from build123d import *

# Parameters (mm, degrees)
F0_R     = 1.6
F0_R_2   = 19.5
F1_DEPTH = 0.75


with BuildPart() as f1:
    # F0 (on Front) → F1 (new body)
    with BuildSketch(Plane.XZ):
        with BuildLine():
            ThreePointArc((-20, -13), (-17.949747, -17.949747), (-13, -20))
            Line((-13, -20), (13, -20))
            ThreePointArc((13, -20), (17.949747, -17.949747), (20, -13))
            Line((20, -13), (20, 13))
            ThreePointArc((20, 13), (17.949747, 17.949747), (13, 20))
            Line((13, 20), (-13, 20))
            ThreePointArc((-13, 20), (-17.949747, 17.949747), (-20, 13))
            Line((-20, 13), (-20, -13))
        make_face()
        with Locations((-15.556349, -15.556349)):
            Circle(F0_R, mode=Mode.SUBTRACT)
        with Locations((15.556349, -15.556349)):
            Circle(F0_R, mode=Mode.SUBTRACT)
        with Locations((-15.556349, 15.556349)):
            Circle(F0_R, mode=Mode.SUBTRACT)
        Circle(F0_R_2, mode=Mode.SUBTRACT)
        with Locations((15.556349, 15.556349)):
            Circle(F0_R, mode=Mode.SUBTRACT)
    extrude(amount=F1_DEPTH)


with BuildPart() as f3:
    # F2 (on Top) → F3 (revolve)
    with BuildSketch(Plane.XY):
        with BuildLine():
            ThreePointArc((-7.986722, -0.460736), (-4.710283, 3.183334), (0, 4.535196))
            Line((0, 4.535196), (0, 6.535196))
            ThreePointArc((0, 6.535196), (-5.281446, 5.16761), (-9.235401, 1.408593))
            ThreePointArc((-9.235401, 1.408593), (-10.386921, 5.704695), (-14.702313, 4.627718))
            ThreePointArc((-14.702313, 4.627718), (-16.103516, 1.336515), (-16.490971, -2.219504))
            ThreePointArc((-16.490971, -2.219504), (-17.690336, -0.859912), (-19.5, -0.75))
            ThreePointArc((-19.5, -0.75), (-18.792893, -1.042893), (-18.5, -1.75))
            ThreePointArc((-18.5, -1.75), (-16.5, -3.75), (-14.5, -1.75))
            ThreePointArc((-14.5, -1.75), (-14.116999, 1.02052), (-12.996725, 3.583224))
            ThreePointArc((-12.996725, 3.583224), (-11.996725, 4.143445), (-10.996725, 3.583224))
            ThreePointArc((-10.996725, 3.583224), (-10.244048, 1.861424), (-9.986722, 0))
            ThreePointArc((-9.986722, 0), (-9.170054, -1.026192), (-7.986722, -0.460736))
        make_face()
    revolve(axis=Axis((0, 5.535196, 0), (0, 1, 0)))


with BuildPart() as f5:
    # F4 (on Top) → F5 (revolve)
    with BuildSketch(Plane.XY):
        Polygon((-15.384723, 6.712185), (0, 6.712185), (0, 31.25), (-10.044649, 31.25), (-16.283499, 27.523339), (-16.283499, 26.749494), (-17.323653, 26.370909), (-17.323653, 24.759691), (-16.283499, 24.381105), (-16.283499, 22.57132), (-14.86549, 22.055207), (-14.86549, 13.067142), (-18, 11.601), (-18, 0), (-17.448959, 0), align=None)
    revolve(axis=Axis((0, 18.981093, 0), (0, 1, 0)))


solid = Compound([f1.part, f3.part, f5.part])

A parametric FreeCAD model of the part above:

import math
import FreeCAD as App
import Part
import Sketcher

V = App.Vector
Q = App.Units.Quantity

doc = App.newDocument("Part")
body = doc.addObject("PartDesign::Body", "Body")

# Sketch on XZ plane
sketch1 = body.newObject("Sketcher::SketchObject", "Sketch")
sketch1.AttachmentSupport = (doc.getObject("XZ_Plane"), [""])
sketch1.MapMode = "FlatFace"
sketch1.addGeometry([
    Part.ArcOfCircle(Part.Circle(V(-13, -13, 0), V(0, 0, 1), 7), math.radians(-180), math.radians(-90)),  # 0
    Part.LineSegment(V(-13, -20, 0), V(13, -20, 0)),  # 1
    Part.ArcOfCircle(Part.Circle(V(13, -13, 0), V(0, 0, 1), 7), math.radians(-90), math.radians(0)),  # 2
    Part.LineSegment(V(20, -13, 0), V(20, 13, 0)),  # 3
    Part.ArcOfCircle(Part.Circle(V(13, 13, 0), V(0, 0, 1), 7), math.radians(0), math.radians(90)),  # 4
    Part.LineSegment(V(13, 20, 0), V(-13, 20, 0)),  # 5
    Part.ArcOfCircle(Part.Circle(V(-13, 13, 0), V(0, 0, 1), 7), math.radians(90), math.radians(180)),  # 6
    Part.LineSegment(V(-20, 13, 0), V(-20, -13, 0)),  # 7
    Part.Circle(V(-15.6, -15.6, 0), V(0, 0, 1), 1.6),  # 8
    Part.Circle(V(15.6, -15.6, 0), V(0, 0, 1), 1.6),  # 9
    Part.Circle(V(-15.6, 15.6, 0), V(0, 0, 1), 1.6),  # 10
    Part.Circle(V(0, 0, 0), V(0, 0, 1), 19.5),  # 11
    Part.Circle(V(15.6, 15.6, 0), V(0, 0, 1), 1.6),  # 12
], False)
sketch1.addConstraint([
    Sketcher.Constraint("Tangent", 0, 2, 1, 1),
    Sketcher.Constraint("Tangent", 1, 2, 2, 1),
    Sketcher.Constraint("Tangent", 2, 2, 3, 1),
    Sketcher.Constraint("Tangent", 3, 2, 4, 1),
    Sketcher.Constraint("Tangent", 4, 2, 5, 1),
    Sketcher.Constraint("Tangent", 5, 2, 6, 1),
    Sketcher.Constraint("Tangent", 6, 2, 7, 1),
    Sketcher.Constraint("Tangent", 7, 2, 0, 1),
    Sketcher.Constraint("Horizontal", 1),
    Sketcher.Constraint("Vertical", 3),
    Sketcher.Constraint("Horizontal", 5),
    Sketcher.Constraint("Vertical", 7),
    Sketcher.Constraint("Coincident", 11, 3, -1, 1),
    Sketcher.Constraint("Equal", 0, 2),
    Sketcher.Constraint("Equal", 2, 4),
    Sketcher.Constraint("Equal", 4, 6),
    Sketcher.Constraint("Equal", 8, 9),
    Sketcher.Constraint("Equal", 9, 10),
    Sketcher.Constraint("Equal", 10, 12),
    Sketcher.Constraint("Symmetric", 0, 3, 4, 3, -1, 1),
    Sketcher.Constraint("Symmetric", 9, 3, 10, 3, -1, 1),
    Sketcher.Constraint("Symmetric", 8, 3, 12, 3, -1, 1),
    Sketcher.Constraint("Symmetric", 8, 3, 9, 3, -2),
    Sketcher.Constraint("Equal", 5, 3),
    Sketcher.Constraint("Diameter", 11, 39.0),
    Sketcher.Constraint("Radius", 0, 7.000002),
    Sketcher.Constraint("Diameter", 8, 3.2),
    Sketcher.Constraint("DistanceX", 1, 1, 1, 2, 26.0),
    Sketcher.Constraint("DistanceX", 8, 3, 9, 3, 31.112698),
    Sketcher.Constraint("DistanceY", 8, 3, 10, 3, 31.112698),
])
pad1 = body.newObject("PartDesign::Pad", "Pad")
pad1.Profile = sketch1
pad1.Length = 0.75
body2 = doc.addObject("PartDesign::Body", "Body001")

# Sketch on XY plane
sketch2 = body2.newObject("Sketcher::SketchObject", "Sketch001")
sketch2.AttachmentSupport = (doc.getObject("XY_Plane001"), [""])
sketch2.MapMode = "FlatFace"
sketch2.addGeometry([
    Part.ArcOfCircle(Part.Circle(V(0, -4.346736, 0), V(0, 0, 1), 8.881932), math.radians(89.999998), math.radians(154.054409)),  # 0
    Part.LineSegment(V(0, 4.535196, 0), V(0, 6.535196, 0)),  # 1
    Part.ArcOfCircle(Part.Circle(V(-0.000001, -4.346733, 0), V(0, 0, 1), 10.881929), math.radians(89.999993), math.radians(148.06962)),  # 2
    Part.ArcOfCircle(Part.Circle(V(-11.996725, 2.970829, 0), V(0, 0, 1), 3.172616), math.radians(-29.499285), math.radians(148.516907)),  # 3
    Part.ArcOfCircle(Part.Circle(V(-4.287926, -1.75, 0), V(0, 0, 1), 12.212074), math.radians(148.516909), math.radians(182.20333)),  # 4
    Part.ArcOfCircle(Part.Circle(V(-18.727493, -2.983647, 0), V(0, 0, 1), 2.363461), math.radians(18.863547), math.radians(109.077939)),  # 5
    Part.ArcOfCircle(Part.Circle(V(-19.499999, -1.749999, 0), V(0, 0, 1), 0.999999), math.radians(-0.000043), math.radians(90.000043)),  # 6
    Part.ArcOfCircle(Part.Circle(V(-16.5, -1.75, 0), V(0, 0, 1), 2), math.radians(180), math.radians(360)),  # 7
    Part.ArcOfCircle(Part.Circle(V(-4.287926, -1.75, 0), V(0, 0, 1), 10.212074), math.radians(148.516911), math.radians(180.000002)),  # 8
    Part.ArcOfCircle(Part.Circle(V(-11.996725, 2.97083, 0), V(0, 0, 1), 1.172615), math.radians(31.48307), math.radians(148.51693)),  # 9
    Part.ArcOfCircle(Part.Circle(V(-16.847886, 0.000001, 0), V(0, 0, 1), 6.861164), math.radians(-0.00001), math.radians(31.483103)),  # 10
    Part.ArcOfCircle(Part.Circle(V(-8.933653, 0, 0), V(0, 0, 1), 1.053069), math.radians(179.999985), math.radians(334.054438)),  # 11
], False)
sketch2.addConstraint([
    Sketcher.Constraint("Coincident", 0, 1, 1, 1),
    Sketcher.Constraint("Coincident", 1, 2, 2, 1),
    Sketcher.Constraint("Coincident", 2, 2, 3, 1),
    Sketcher.Constraint("Coincident", 3, 2, 4, 1),
    Sketcher.Constraint("Coincident", 4, 2, 5, 1),
    Sketcher.Constraint("Coincident", 5, 2, 6, 2),
    Sketcher.Constraint("Coincident", 6, 1, 7, 1),
    Sketcher.Constraint("Coincident", 7, 2, 8, 2),
    Sketcher.Constraint("Coincident", 8, 1, 9, 2),
    Sketcher.Constraint("Coincident", 9, 1, 10, 2),
    Sketcher.Constraint("Coincident", 10, 1, 11, 1),
    Sketcher.Constraint("Coincident", 11, 2, 0, 2),
    Sketcher.Constraint("Vertical", 1),
    Sketcher.Constraint("Coincident", 2, 3, 0, 3),
    Sketcher.Constraint("Coincident", 8, 3, 4, 3),
    Sketcher.Constraint("Coincident", 9, 3, 3, 3),
    Sketcher.Constraint("PointOnObject", 0, 3, -2),
    Sketcher.Constraint("PointOnObject", 10, 3, -1),
    Sketcher.Constraint("PointOnObject", 11, 3, -1),
    Sketcher.Constraint("PointOnObject", 0, 1, -2),
    Sketcher.Constraint("PointOnObject", 10, 1, -1),
    Sketcher.Constraint("Radius", 6, 0.999999),
    Sketcher.Constraint("Radius", 7, 2.0),
    Sketcher.Constraint("DistanceY", 1, 1, 1, 2, 2.0),
    Sketcher.Constraint("DistanceX", 5, 2, 7, 3, 3.0),
    Sketcher.Constraint("DistanceY", 7, 3, 5, 2, 1.0),
    Sketcher.Constraint("DistanceY", 6, 1, 5, 2, 1.0),
    Sketcher.Constraint("DistanceX", 8, 1, 9, 3, 1.0),
    Sketcher.Constraint("DistanceX", 3, 3, 9, 1, 1.0),
    Sketcher.Constraint("DistanceX", 10, 1, 11, 2, 2.0),
    Sketcher.Constraint("DistanceX", 6, 3, -1, 1, 19.499999),
    Sketcher.Constraint("DistanceY", 4, 3, -1, 1, 1.75),
    Sketcher.Constraint("DistanceY", 6, 3, -1, 1, 1.749999),
    Sketcher.Constraint("DistanceY", 7, 2, -1, 1, 1.75),
    Sketcher.Constraint("Radius", 2, 10.881929),
    Sketcher.Constraint("Radius", 5, 2.363461),
    Sketcher.Constraint("Radius", 11, 1.053069),
    Sketcher.Constraint("Radius", 3, 3.172616),
    Sketcher.Constraint("Radius", 4, 12.212074),
    Sketcher.Constraint("Radius", 8, 10.212074),
    Sketcher.Constraint("Radius", 10, 6.861164),
    Sketcher.Constraint("DistanceX", 2, 2, -1, 1, 9.235401),
    Sketcher.Constraint("DistanceX", 4, 2, -1, 1, 16.490971),
    Sketcher.Constraint("DistanceY", 9, 3, 3, 2, 1.656888),
])
revolution = body2.newObject("PartDesign::Revolution", "Revolution")
revolution.Profile = sketch2
revolution.ReferenceAxis = (sketch2, ["V_Axis"])
revolution.Angle = 360
body3 = doc.addObject("PartDesign::Body", "Body002")

# Sketch on XY plane
sketch3 = body3.newObject("Sketcher::SketchObject", "Sketch002")
sketch3.AttachmentSupport = (doc.getObject("XY_Plane002"), [""])
sketch3.MapMode = "FlatFace"
sketch3.addGeometry([
    Part.LineSegment(V(-15.4, 6.7, 0), V(0, 6.7, 0)),  # 0
    Part.LineSegment(V(0, 6.7, 0), V(0, 31.2, 0)),  # 1
    Part.LineSegment(V(0, 31.2, 0), V(-10, 31.2, 0)),  # 2
    Part.LineSegment(V(-10, 31.2, 0), V(-16.3, 27.5, 0)),  # 3
    Part.LineSegment(V(-16.3, 27.5, 0), V(-16.3, 26.7, 0)),  # 4
    Part.LineSegment(V(-16.3, 26.7, 0), V(-17.3, 26.4, 0)),  # 5
    Part.LineSegment(V(-17.3, 26.4, 0), V(-17.3, 24.8, 0)),  # 6
    Part.LineSegment(V(-17.3, 24.8, 0), V(-16.3, 24.4, 0)),  # 7
    Part.LineSegment(V(-16.3, 24.4, 0), V(-16.3, 22.6, 0)),  # 8
    Part.LineSegment(V(-16.3, 22.6, 0), V(-14.9, 22.1, 0)),  # 9
    Part.LineSegment(V(-14.9, 22.1, 0), V(-14.9, 13.1, 0)),  # 10
    Part.LineSegment(V(-14.9, 13.1, 0), V(-18, 11.6, 0)),  # 11
    Part.LineSegment(V(-18, 11.6, 0), V(-18, 0, 0)),  # 12
    Part.LineSegment(V(-18, 0, 0), V(-17.4, 0, 0)),  # 13
    Part.LineSegment(V(-17.4, 0, 0), V(-15.4, 6.7, 0)),  # 14
], False)
sketch3.addConstraint([
    Sketcher.Constraint("Coincident", 0, 2, 1, 1),
    Sketcher.Constraint("Coincident", 1, 2, 2, 1),
    Sketcher.Constraint("Coincident", 2, 2, 3, 1),
    Sketcher.Constraint("Coincident", 3, 2, 4, 1),
    Sketcher.Constraint("Coincident", 4, 2, 5, 1),
    Sketcher.Constraint("Coincident", 5, 2, 6, 1),
    Sketcher.Constraint("Coincident", 6, 2, 7, 1),
    Sketcher.Constraint("Coincident", 7, 2, 8, 1),
    Sketcher.Constraint("Coincident", 8, 2, 9, 1),
    Sketcher.Constraint("Coincident", 9, 2, 10, 1),
    Sketcher.Constraint("Coincident", 10, 2, 11, 1),
    Sketcher.Constraint("Coincident", 11, 2, 12, 1),
    Sketcher.Constraint("Coincident", 12, 2, 13, 1),
    Sketcher.Constraint("Coincident", 13, 2, 14, 1),
    Sketcher.Constraint("Coincident", 14, 2, 0, 1),
    Sketcher.Constraint("Horizontal", 0),
    Sketcher.Constraint("Vertical", 1),
    Sketcher.Constraint("Horizontal", 2),
    Sketcher.Constraint("Vertical", 4),
    Sketcher.Constraint("Vertical", 6),
    Sketcher.Constraint("Vertical", 8),
    Sketcher.Constraint("Vertical", 10),
    Sketcher.Constraint("Vertical", 12),
    Sketcher.Constraint("Horizontal", 13),
    Sketcher.Constraint("PointOnObject", 0, 2, -2),
    Sketcher.Constraint("PointOnObject", 12, 2, -1),
    Sketcher.Constraint("Parallel", 7, 9),
    Sketcher.Constraint("Vertical", 4, 2, 7, 2),
    Sketcher.Constraint("Equal", 5, 7),
    Sketcher.Constraint("Angle", 5, Q("-160.000005 deg")),
    Sketcher.Constraint("DistanceX", 11, 2, -1, 1, 18.0),
    Sketcher.Constraint("DistanceY", 12, 2, 12, 1, 11.601),
    Sketcher.Constraint("DistanceY", -1, 1, 1, 2, 31.25),
    Sketcher.Constraint("DistanceX", 2, 2, 2, 1, 10.044649),
    Sketcher.Constraint("DistanceX", 13, 1, 13, 2, 0.551041),
    Sketcher.Constraint("DistanceY", 6, 2, 6, 1, 1.611218),
    Sketcher.Constraint("DistanceX", 3, 2, -1, 1, 16.283499),
    Sketcher.Constraint("DistanceY", 9, 2, 7, 2, 2.325898),
    Sketcher.Constraint("Distance", 5, 1.106909),
    Sketcher.Constraint("Distance", 11, 3.460452),
    Sketcher.Constraint("Distance", 14, 7.022428),
    Sketcher.Constraint("DistanceX", 0, 1, 0, 2, 15.384723),
    Sketcher.Constraint("DistanceY", 4, 2, 4, 1, 0.773845),
    Sketcher.Constraint("DistanceY", 8, 2, 8, 1, 1.809785),
    Sketcher.Constraint("DistanceY", 10, 2, 10, 1, 8.988065),
])
revolution2 = body3.newObject("PartDesign::Revolution", "Revolution001")
revolution2.Profile = sketch3
revolution2.ReferenceAxis = (sketch3, ["V_Axis"])
revolution2.Angle = 360

doc.recompute()
